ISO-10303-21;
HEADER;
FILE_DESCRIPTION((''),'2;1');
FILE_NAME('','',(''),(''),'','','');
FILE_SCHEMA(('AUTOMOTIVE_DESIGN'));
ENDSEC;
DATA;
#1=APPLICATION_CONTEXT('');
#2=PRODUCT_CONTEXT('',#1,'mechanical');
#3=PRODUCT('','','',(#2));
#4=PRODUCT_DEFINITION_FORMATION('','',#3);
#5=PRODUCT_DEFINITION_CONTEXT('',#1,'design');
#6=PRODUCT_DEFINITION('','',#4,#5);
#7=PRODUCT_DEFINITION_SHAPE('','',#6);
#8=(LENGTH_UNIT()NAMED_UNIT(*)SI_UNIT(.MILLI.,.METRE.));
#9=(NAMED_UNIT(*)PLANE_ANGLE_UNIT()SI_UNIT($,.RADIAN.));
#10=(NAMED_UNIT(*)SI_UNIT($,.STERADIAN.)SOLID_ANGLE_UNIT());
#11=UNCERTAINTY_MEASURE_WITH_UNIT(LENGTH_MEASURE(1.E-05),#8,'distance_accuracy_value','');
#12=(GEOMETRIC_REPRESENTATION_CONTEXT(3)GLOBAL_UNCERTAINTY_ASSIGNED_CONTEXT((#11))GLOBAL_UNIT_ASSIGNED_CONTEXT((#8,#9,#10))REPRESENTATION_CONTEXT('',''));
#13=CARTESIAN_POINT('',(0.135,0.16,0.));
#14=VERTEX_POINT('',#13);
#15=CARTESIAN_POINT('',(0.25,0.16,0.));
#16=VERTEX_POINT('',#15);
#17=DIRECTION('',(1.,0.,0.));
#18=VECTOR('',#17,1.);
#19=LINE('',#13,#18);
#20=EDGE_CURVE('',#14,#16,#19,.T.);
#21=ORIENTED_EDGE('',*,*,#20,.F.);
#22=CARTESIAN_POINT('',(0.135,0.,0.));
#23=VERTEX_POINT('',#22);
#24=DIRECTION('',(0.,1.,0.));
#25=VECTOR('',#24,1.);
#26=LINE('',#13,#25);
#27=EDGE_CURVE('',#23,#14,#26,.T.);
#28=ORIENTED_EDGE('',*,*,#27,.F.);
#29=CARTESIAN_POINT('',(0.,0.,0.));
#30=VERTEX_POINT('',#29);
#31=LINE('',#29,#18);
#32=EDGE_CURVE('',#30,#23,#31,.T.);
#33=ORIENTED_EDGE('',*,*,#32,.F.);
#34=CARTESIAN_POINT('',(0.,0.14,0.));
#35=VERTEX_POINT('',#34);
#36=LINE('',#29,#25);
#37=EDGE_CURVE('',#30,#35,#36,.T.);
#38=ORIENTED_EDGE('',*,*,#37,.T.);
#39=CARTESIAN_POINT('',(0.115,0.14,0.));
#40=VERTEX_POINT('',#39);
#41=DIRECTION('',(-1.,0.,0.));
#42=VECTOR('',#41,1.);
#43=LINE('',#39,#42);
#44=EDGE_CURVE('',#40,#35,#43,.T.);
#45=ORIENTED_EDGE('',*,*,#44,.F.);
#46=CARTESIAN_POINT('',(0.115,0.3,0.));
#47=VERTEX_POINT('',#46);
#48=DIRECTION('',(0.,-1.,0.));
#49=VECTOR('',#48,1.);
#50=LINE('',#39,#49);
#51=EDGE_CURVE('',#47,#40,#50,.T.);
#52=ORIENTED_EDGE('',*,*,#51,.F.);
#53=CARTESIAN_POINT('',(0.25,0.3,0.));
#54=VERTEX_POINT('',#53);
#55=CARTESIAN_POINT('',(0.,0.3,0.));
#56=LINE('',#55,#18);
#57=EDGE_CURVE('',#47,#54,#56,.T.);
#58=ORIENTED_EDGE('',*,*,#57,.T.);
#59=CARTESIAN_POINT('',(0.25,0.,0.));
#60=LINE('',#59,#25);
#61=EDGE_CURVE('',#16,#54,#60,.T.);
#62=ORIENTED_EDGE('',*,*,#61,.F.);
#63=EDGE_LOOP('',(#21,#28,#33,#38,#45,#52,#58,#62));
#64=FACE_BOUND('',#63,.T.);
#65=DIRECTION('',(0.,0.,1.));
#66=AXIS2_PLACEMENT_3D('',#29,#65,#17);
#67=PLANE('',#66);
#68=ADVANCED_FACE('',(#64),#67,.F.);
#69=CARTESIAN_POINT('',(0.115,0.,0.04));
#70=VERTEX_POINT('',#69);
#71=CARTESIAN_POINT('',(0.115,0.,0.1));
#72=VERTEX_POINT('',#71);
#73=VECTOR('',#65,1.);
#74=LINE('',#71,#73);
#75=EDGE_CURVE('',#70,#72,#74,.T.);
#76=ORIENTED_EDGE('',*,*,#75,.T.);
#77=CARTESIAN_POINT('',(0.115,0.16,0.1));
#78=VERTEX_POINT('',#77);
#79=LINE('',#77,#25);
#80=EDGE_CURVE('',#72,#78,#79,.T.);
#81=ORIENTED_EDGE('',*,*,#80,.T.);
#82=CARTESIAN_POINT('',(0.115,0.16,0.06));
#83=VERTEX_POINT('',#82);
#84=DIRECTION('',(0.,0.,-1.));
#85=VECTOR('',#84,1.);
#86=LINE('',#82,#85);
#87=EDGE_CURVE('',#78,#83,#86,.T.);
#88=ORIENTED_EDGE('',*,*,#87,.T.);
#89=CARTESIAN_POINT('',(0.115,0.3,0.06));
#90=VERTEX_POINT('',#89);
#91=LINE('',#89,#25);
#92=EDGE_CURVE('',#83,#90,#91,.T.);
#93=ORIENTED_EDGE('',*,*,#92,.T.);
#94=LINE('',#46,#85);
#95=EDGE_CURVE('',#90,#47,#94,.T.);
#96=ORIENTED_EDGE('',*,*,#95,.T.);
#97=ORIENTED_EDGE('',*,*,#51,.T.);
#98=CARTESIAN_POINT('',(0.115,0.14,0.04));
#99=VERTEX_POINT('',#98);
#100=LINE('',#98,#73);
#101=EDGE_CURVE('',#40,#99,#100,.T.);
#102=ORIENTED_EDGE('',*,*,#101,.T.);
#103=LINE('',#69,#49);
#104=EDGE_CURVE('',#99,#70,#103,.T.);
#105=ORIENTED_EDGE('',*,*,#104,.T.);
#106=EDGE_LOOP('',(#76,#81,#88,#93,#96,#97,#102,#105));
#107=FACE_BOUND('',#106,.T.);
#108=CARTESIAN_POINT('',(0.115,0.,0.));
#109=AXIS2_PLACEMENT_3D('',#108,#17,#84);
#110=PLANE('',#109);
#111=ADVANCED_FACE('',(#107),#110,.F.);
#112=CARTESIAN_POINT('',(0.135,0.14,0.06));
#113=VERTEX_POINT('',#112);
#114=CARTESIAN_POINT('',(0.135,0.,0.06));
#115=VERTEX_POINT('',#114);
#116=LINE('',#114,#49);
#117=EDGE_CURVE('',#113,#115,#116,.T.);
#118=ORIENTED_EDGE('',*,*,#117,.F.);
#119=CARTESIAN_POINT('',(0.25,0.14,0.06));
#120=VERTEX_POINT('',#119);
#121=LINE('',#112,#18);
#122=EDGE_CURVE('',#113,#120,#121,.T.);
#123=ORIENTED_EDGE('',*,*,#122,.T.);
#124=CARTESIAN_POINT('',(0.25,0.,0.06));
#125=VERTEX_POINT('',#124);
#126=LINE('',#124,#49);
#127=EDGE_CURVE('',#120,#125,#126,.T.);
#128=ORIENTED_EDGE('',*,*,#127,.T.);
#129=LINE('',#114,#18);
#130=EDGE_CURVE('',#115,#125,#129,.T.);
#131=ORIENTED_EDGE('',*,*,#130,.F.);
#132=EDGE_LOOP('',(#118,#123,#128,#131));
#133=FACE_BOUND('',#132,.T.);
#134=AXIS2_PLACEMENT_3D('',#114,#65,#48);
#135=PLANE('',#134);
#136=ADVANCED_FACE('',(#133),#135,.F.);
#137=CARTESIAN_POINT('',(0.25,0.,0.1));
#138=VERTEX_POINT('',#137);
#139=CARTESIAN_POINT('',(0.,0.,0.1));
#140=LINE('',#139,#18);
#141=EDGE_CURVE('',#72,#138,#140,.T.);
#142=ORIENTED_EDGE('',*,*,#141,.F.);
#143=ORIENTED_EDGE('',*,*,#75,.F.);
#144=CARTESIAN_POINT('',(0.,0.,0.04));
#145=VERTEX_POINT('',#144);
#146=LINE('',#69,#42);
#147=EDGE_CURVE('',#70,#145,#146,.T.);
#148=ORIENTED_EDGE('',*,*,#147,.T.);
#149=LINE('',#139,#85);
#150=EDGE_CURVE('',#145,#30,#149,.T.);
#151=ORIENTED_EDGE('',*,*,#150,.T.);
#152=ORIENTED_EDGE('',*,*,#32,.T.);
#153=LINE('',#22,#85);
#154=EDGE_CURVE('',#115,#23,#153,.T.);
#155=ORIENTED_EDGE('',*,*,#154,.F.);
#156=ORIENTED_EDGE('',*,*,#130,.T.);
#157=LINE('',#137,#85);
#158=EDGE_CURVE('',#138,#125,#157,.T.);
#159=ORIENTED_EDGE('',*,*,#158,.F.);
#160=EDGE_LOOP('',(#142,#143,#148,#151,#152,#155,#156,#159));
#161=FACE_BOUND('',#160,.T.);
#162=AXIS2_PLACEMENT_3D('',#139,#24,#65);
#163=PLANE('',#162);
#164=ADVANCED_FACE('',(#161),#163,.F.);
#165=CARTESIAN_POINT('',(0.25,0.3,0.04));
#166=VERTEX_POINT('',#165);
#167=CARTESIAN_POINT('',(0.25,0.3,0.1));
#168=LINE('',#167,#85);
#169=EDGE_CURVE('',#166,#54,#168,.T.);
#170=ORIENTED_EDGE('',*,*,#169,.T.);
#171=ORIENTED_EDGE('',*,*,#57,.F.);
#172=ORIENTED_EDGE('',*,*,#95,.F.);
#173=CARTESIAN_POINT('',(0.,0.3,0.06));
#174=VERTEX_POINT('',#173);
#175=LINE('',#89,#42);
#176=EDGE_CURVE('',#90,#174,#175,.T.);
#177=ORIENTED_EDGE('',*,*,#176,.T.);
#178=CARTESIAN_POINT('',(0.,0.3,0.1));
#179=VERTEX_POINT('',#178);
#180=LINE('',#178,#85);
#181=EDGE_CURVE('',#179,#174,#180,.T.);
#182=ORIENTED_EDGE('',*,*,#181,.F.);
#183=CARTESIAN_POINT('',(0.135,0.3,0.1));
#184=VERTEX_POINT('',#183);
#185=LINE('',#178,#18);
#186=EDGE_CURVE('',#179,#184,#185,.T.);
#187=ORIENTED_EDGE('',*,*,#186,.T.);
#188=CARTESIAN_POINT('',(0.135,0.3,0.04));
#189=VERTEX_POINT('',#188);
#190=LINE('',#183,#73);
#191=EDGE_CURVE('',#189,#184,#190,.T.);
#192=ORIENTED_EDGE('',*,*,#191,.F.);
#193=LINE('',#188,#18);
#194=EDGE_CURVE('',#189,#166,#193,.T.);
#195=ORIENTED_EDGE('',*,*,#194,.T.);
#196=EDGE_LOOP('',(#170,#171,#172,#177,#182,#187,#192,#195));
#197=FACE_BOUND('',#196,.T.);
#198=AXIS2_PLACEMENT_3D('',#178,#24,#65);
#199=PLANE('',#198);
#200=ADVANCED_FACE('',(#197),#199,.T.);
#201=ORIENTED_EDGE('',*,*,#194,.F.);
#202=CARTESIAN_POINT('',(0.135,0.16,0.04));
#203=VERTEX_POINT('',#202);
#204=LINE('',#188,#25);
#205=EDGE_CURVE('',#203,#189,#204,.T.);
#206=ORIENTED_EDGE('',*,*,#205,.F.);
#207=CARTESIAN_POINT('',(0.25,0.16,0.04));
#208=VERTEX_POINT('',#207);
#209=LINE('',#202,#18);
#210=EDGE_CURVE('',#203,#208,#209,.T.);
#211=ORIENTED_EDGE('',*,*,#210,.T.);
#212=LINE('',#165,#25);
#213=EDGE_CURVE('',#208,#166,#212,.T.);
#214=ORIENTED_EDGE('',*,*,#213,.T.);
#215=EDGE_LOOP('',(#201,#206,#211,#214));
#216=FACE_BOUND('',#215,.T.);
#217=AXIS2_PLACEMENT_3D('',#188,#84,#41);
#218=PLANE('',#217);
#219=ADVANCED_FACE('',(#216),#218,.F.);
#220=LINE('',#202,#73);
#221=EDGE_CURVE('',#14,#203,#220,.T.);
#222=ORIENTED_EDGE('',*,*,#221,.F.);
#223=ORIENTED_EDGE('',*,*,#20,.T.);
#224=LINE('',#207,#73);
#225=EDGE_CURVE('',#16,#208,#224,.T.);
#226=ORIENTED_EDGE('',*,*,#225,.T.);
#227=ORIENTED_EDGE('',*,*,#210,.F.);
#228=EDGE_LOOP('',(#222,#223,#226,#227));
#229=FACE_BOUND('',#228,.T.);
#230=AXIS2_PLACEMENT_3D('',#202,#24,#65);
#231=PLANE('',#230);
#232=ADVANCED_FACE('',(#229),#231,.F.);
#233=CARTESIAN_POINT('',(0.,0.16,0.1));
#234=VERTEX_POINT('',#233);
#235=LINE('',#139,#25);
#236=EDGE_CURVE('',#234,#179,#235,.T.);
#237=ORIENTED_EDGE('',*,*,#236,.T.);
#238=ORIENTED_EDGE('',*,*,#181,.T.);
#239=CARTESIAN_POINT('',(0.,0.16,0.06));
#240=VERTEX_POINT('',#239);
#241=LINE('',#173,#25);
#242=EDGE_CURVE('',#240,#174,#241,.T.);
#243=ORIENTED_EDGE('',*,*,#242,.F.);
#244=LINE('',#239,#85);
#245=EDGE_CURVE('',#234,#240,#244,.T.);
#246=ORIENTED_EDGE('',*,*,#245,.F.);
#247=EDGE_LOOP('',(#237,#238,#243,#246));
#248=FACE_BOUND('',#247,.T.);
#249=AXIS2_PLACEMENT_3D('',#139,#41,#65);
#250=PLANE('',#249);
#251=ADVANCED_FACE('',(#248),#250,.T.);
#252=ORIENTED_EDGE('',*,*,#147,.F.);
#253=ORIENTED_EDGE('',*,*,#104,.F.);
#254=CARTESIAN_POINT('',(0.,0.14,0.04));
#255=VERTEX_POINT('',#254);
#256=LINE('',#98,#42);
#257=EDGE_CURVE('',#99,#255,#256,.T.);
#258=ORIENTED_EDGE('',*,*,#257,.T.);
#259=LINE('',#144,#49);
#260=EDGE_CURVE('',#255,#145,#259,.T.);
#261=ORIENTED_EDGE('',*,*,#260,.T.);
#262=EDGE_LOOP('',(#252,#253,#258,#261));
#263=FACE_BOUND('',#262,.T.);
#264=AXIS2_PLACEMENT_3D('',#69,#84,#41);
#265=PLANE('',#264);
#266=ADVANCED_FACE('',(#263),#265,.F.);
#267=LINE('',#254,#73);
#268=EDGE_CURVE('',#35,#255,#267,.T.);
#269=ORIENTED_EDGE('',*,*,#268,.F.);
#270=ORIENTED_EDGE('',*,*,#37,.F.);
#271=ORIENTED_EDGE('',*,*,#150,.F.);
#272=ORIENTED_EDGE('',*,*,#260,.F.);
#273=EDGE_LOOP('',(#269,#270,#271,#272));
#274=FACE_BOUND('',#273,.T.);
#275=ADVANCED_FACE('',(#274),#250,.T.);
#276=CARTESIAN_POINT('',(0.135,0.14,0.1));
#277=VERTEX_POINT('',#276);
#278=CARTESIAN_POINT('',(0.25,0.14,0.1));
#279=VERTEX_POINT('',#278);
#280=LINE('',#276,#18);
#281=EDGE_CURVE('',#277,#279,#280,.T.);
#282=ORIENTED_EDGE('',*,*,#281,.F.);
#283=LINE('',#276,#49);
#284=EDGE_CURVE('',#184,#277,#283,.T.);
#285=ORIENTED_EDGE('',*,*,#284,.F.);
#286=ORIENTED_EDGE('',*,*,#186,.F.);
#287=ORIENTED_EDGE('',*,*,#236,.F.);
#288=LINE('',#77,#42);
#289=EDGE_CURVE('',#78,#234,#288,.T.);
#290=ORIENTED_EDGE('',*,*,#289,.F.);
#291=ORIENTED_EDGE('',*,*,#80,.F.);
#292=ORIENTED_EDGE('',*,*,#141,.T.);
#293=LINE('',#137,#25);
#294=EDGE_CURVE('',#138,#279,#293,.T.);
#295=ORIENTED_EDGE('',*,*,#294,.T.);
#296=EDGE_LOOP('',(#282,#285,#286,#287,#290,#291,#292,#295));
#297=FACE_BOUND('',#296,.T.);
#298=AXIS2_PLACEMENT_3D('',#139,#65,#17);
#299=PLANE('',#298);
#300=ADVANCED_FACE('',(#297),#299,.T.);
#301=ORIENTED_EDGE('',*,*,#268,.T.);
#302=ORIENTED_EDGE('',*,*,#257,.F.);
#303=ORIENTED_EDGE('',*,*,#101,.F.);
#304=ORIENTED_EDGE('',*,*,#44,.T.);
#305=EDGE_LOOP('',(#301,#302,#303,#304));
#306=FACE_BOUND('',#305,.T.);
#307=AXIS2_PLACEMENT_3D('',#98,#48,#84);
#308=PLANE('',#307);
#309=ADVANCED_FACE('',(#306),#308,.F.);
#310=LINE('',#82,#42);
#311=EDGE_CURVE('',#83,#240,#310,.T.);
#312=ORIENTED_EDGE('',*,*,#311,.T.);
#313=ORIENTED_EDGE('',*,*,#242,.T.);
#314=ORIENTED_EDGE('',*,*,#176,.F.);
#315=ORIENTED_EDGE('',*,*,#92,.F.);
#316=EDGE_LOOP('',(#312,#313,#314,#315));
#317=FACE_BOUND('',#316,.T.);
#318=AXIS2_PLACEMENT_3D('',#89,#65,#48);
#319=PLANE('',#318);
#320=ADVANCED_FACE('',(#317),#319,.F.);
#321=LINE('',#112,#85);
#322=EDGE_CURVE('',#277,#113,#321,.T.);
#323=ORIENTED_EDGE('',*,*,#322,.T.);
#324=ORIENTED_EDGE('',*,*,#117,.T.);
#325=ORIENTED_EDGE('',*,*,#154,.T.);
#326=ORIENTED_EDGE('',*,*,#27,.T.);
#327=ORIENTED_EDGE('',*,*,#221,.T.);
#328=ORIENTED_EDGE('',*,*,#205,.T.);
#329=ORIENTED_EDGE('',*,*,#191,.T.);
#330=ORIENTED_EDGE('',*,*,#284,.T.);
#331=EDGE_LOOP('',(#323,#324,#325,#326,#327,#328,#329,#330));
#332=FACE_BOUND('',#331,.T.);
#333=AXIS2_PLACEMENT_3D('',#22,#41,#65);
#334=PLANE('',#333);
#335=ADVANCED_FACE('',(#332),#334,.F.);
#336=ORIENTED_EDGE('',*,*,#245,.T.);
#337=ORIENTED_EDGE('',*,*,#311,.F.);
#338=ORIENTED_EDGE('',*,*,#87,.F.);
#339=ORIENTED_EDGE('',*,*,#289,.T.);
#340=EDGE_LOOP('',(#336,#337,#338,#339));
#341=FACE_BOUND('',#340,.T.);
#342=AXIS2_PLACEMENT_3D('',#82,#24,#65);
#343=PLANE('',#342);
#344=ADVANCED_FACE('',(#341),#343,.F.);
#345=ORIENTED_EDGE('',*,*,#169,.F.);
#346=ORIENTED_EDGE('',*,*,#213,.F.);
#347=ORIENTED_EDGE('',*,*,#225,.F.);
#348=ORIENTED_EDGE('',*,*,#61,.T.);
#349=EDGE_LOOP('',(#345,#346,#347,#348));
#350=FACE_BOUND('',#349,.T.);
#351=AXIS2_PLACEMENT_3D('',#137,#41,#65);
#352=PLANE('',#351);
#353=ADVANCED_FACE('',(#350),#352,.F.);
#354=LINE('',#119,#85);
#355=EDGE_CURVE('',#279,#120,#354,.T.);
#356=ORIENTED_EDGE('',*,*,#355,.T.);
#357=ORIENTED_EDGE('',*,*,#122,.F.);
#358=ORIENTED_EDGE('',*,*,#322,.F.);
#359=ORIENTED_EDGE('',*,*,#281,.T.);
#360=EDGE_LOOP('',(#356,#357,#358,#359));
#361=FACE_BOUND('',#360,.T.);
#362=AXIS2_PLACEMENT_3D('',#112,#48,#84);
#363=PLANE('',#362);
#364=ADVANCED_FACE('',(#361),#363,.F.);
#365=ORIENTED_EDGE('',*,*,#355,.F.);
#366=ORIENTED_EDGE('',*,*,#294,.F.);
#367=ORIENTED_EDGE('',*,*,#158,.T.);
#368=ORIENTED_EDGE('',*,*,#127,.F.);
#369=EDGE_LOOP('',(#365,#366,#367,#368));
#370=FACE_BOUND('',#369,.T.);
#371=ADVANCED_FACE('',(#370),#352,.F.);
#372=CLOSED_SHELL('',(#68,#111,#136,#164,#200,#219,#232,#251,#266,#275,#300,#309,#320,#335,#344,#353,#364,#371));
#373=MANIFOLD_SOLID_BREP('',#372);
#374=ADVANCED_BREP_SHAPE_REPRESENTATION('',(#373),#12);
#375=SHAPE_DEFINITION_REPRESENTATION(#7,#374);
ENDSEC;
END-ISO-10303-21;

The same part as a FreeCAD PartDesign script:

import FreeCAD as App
import Part
import Sketcher

V = App.Vector
Q = App.Units.Quantity


def add_polygon(sketch, points):
    """Adds a closed chain of lines whose ends are joined by coincident constraints."""
    first, n = sketch.GeometryCount, len(points)
    for a, b in zip(points, points[1:] + points[:1]):
        sketch.addGeometry(Part.LineSegment(App.Vector(*a, 0), App.Vector(*b, 0)), False)
    for i in range(n):
        sketch.addConstraint(Sketcher.Constraint("Coincident", first + i, 2, first + (i + 1) % n, 1))

doc = App.newDocument("Part")
body = doc.addObject("PartDesign::Body", "Body")

# Sketch on XY plane
sketch1 = body.newObject("Sketcher::SketchObject", "Sketch")
sketch1.AttachmentSupport = (doc.getObject("XY_Plane"), [""])
sketch1.MapMode = "FlatFace"
add_polygon(sketch1, [(0, 0.3), (0, 0), (0.25, 0), (0.25, 0.3)])  # lines 0-3
sketch1.addConstraint([
    Sketcher.Constraint("Vertical", 0),
    Sketcher.Constraint("Horizontal", 1),
    Sketcher.Constraint("Vertical", 2),
    Sketcher.Constraint("Horizontal", 3),
    Sketcher.Constraint("Coincident", 0, 2, -1, 1),
    Sketcher.Constraint("DistanceY", 0, 2, 0, 1, Q("0.3 mm")),
    Sketcher.Constraint("DistanceX", 1, 1, 1, 2, Q("0.25 mm")),
])
pad1 = body.newObject("PartDesign::Pad", "Pad")
pad1.Profile = sketch1
pad1.Length = 0.1

# Sketch on YZ plane
sketch2 = body.newObject("Sketcher::SketchObject", "Sketch001")
sketch2.AttachmentSupport = (doc.getObject("YZ_Plane"), [""])
sketch2.MapMode = "FlatFace"
add_polygon(sketch2, [(0.3, 0.06), (0.3, 0), (0.14, 0), (0.14, 0.04), (0, 0.04), (0, 0.1), (0.16, 0.1), (0.16, 0.06)])  # lines 0-7
sketch2.addConstraint([
    Sketcher.Constraint("Vertical", 0),
    Sketcher.Constraint("Horizontal", 1),
    Sketcher.Constraint("Vertical", 2),
    Sketcher.Constraint("Horizontal", 3),
    Sketcher.Constraint("Vertical", 4),
    Sketcher.Constraint("Horizontal", 5),
    Sketcher.Constraint("Vertical", 6),
    Sketcher.Constraint("Horizontal", 7),
    Sketcher.Constraint("PointOnObject", 0, 2, -1),
    Sketcher.Constraint("PointOnObject", 3, 2, -2),
    Sketcher.Constraint("Equal", 1, 5),
    Sketcher.Constraint("Equal", 0, 4),
    Sketcher.Constraint("DistanceX", 1, 2, 1, 1, Q("0.16 mm")),
    Sketcher.Constraint("DistanceX", 3, 2, 3, 1, Q("0.14 mm")),
    Sketcher.Constraint("DistanceY", 0, 2, 0, 1, Q("0.06 mm")),
    Sketcher.Constraint("DistanceY", 2, 1, 2, 2, Q("0.04 mm")),
])
pocket1 = body.newObject("PartDesign::Pocket", "Pocket")
pocket1.Profile = sketch2
pocket1.Length = 0.115
pocket1.Reversed = True

# Sketch on YZ plane
sketch3 = body.newObject("Sketcher::SketchObject", "Sketch002")
sketch3.AttachmentSupport = (doc.getObject("YZ_Plane"), [""])
sketch3.MapMode = "FlatFace"
sketch3.AttachmentOffset = App.Placement(V(0, 0, 0.25), App.Rotation())
add_polygon(sketch3, [(0.3, 0.1), (0.14, 0.1), (0.14, 0.06), (0, 0.06), (0, 0), (0.16, 0), (0.16, 0.04), (0.3, 0.04)])  # lines 0-7
sketch3.addConstraint([
    Sketcher.Constraint("Horizontal", 0),
    Sketcher.Constraint("Vertical", 1),
    Sketcher.Constraint("Horizontal", 2),
    Sketcher.Constraint("Vertical", 3),
    Sketcher.Constraint("Horizontal", 4),
    Sketcher.Constraint("Vertical", 5),
    Sketcher.Constraint("Horizontal", 6),
    Sketcher.Constraint("Vertical", 7),
    Sketcher.Constraint("Coincident", 3, 2, -1, 1),
    Sketcher.Constraint("Equal", 0, 4),
    Sketcher.Constraint("Equal", 1, 5),
    Sketcher.Constraint("DistanceX", 0, 2, 0, 1, Q("0.16 mm")),
    Sketcher.Constraint("DistanceX", 2, 2, 2, 1, Q("0.14 mm")),
    Sketcher.Constraint("DistanceY", 1, 2, 1, 1, Q("0.04 mm")),
    Sketcher.Constraint("DistanceY", 3, 2, 3, 1, Q("0.06 mm")),
])
pocket2 = body.newObject("PartDesign::Pocket", "Pocket001")
pocket2.Profile = sketch3
pocket2.Length = 0.115

doc.recompute()
